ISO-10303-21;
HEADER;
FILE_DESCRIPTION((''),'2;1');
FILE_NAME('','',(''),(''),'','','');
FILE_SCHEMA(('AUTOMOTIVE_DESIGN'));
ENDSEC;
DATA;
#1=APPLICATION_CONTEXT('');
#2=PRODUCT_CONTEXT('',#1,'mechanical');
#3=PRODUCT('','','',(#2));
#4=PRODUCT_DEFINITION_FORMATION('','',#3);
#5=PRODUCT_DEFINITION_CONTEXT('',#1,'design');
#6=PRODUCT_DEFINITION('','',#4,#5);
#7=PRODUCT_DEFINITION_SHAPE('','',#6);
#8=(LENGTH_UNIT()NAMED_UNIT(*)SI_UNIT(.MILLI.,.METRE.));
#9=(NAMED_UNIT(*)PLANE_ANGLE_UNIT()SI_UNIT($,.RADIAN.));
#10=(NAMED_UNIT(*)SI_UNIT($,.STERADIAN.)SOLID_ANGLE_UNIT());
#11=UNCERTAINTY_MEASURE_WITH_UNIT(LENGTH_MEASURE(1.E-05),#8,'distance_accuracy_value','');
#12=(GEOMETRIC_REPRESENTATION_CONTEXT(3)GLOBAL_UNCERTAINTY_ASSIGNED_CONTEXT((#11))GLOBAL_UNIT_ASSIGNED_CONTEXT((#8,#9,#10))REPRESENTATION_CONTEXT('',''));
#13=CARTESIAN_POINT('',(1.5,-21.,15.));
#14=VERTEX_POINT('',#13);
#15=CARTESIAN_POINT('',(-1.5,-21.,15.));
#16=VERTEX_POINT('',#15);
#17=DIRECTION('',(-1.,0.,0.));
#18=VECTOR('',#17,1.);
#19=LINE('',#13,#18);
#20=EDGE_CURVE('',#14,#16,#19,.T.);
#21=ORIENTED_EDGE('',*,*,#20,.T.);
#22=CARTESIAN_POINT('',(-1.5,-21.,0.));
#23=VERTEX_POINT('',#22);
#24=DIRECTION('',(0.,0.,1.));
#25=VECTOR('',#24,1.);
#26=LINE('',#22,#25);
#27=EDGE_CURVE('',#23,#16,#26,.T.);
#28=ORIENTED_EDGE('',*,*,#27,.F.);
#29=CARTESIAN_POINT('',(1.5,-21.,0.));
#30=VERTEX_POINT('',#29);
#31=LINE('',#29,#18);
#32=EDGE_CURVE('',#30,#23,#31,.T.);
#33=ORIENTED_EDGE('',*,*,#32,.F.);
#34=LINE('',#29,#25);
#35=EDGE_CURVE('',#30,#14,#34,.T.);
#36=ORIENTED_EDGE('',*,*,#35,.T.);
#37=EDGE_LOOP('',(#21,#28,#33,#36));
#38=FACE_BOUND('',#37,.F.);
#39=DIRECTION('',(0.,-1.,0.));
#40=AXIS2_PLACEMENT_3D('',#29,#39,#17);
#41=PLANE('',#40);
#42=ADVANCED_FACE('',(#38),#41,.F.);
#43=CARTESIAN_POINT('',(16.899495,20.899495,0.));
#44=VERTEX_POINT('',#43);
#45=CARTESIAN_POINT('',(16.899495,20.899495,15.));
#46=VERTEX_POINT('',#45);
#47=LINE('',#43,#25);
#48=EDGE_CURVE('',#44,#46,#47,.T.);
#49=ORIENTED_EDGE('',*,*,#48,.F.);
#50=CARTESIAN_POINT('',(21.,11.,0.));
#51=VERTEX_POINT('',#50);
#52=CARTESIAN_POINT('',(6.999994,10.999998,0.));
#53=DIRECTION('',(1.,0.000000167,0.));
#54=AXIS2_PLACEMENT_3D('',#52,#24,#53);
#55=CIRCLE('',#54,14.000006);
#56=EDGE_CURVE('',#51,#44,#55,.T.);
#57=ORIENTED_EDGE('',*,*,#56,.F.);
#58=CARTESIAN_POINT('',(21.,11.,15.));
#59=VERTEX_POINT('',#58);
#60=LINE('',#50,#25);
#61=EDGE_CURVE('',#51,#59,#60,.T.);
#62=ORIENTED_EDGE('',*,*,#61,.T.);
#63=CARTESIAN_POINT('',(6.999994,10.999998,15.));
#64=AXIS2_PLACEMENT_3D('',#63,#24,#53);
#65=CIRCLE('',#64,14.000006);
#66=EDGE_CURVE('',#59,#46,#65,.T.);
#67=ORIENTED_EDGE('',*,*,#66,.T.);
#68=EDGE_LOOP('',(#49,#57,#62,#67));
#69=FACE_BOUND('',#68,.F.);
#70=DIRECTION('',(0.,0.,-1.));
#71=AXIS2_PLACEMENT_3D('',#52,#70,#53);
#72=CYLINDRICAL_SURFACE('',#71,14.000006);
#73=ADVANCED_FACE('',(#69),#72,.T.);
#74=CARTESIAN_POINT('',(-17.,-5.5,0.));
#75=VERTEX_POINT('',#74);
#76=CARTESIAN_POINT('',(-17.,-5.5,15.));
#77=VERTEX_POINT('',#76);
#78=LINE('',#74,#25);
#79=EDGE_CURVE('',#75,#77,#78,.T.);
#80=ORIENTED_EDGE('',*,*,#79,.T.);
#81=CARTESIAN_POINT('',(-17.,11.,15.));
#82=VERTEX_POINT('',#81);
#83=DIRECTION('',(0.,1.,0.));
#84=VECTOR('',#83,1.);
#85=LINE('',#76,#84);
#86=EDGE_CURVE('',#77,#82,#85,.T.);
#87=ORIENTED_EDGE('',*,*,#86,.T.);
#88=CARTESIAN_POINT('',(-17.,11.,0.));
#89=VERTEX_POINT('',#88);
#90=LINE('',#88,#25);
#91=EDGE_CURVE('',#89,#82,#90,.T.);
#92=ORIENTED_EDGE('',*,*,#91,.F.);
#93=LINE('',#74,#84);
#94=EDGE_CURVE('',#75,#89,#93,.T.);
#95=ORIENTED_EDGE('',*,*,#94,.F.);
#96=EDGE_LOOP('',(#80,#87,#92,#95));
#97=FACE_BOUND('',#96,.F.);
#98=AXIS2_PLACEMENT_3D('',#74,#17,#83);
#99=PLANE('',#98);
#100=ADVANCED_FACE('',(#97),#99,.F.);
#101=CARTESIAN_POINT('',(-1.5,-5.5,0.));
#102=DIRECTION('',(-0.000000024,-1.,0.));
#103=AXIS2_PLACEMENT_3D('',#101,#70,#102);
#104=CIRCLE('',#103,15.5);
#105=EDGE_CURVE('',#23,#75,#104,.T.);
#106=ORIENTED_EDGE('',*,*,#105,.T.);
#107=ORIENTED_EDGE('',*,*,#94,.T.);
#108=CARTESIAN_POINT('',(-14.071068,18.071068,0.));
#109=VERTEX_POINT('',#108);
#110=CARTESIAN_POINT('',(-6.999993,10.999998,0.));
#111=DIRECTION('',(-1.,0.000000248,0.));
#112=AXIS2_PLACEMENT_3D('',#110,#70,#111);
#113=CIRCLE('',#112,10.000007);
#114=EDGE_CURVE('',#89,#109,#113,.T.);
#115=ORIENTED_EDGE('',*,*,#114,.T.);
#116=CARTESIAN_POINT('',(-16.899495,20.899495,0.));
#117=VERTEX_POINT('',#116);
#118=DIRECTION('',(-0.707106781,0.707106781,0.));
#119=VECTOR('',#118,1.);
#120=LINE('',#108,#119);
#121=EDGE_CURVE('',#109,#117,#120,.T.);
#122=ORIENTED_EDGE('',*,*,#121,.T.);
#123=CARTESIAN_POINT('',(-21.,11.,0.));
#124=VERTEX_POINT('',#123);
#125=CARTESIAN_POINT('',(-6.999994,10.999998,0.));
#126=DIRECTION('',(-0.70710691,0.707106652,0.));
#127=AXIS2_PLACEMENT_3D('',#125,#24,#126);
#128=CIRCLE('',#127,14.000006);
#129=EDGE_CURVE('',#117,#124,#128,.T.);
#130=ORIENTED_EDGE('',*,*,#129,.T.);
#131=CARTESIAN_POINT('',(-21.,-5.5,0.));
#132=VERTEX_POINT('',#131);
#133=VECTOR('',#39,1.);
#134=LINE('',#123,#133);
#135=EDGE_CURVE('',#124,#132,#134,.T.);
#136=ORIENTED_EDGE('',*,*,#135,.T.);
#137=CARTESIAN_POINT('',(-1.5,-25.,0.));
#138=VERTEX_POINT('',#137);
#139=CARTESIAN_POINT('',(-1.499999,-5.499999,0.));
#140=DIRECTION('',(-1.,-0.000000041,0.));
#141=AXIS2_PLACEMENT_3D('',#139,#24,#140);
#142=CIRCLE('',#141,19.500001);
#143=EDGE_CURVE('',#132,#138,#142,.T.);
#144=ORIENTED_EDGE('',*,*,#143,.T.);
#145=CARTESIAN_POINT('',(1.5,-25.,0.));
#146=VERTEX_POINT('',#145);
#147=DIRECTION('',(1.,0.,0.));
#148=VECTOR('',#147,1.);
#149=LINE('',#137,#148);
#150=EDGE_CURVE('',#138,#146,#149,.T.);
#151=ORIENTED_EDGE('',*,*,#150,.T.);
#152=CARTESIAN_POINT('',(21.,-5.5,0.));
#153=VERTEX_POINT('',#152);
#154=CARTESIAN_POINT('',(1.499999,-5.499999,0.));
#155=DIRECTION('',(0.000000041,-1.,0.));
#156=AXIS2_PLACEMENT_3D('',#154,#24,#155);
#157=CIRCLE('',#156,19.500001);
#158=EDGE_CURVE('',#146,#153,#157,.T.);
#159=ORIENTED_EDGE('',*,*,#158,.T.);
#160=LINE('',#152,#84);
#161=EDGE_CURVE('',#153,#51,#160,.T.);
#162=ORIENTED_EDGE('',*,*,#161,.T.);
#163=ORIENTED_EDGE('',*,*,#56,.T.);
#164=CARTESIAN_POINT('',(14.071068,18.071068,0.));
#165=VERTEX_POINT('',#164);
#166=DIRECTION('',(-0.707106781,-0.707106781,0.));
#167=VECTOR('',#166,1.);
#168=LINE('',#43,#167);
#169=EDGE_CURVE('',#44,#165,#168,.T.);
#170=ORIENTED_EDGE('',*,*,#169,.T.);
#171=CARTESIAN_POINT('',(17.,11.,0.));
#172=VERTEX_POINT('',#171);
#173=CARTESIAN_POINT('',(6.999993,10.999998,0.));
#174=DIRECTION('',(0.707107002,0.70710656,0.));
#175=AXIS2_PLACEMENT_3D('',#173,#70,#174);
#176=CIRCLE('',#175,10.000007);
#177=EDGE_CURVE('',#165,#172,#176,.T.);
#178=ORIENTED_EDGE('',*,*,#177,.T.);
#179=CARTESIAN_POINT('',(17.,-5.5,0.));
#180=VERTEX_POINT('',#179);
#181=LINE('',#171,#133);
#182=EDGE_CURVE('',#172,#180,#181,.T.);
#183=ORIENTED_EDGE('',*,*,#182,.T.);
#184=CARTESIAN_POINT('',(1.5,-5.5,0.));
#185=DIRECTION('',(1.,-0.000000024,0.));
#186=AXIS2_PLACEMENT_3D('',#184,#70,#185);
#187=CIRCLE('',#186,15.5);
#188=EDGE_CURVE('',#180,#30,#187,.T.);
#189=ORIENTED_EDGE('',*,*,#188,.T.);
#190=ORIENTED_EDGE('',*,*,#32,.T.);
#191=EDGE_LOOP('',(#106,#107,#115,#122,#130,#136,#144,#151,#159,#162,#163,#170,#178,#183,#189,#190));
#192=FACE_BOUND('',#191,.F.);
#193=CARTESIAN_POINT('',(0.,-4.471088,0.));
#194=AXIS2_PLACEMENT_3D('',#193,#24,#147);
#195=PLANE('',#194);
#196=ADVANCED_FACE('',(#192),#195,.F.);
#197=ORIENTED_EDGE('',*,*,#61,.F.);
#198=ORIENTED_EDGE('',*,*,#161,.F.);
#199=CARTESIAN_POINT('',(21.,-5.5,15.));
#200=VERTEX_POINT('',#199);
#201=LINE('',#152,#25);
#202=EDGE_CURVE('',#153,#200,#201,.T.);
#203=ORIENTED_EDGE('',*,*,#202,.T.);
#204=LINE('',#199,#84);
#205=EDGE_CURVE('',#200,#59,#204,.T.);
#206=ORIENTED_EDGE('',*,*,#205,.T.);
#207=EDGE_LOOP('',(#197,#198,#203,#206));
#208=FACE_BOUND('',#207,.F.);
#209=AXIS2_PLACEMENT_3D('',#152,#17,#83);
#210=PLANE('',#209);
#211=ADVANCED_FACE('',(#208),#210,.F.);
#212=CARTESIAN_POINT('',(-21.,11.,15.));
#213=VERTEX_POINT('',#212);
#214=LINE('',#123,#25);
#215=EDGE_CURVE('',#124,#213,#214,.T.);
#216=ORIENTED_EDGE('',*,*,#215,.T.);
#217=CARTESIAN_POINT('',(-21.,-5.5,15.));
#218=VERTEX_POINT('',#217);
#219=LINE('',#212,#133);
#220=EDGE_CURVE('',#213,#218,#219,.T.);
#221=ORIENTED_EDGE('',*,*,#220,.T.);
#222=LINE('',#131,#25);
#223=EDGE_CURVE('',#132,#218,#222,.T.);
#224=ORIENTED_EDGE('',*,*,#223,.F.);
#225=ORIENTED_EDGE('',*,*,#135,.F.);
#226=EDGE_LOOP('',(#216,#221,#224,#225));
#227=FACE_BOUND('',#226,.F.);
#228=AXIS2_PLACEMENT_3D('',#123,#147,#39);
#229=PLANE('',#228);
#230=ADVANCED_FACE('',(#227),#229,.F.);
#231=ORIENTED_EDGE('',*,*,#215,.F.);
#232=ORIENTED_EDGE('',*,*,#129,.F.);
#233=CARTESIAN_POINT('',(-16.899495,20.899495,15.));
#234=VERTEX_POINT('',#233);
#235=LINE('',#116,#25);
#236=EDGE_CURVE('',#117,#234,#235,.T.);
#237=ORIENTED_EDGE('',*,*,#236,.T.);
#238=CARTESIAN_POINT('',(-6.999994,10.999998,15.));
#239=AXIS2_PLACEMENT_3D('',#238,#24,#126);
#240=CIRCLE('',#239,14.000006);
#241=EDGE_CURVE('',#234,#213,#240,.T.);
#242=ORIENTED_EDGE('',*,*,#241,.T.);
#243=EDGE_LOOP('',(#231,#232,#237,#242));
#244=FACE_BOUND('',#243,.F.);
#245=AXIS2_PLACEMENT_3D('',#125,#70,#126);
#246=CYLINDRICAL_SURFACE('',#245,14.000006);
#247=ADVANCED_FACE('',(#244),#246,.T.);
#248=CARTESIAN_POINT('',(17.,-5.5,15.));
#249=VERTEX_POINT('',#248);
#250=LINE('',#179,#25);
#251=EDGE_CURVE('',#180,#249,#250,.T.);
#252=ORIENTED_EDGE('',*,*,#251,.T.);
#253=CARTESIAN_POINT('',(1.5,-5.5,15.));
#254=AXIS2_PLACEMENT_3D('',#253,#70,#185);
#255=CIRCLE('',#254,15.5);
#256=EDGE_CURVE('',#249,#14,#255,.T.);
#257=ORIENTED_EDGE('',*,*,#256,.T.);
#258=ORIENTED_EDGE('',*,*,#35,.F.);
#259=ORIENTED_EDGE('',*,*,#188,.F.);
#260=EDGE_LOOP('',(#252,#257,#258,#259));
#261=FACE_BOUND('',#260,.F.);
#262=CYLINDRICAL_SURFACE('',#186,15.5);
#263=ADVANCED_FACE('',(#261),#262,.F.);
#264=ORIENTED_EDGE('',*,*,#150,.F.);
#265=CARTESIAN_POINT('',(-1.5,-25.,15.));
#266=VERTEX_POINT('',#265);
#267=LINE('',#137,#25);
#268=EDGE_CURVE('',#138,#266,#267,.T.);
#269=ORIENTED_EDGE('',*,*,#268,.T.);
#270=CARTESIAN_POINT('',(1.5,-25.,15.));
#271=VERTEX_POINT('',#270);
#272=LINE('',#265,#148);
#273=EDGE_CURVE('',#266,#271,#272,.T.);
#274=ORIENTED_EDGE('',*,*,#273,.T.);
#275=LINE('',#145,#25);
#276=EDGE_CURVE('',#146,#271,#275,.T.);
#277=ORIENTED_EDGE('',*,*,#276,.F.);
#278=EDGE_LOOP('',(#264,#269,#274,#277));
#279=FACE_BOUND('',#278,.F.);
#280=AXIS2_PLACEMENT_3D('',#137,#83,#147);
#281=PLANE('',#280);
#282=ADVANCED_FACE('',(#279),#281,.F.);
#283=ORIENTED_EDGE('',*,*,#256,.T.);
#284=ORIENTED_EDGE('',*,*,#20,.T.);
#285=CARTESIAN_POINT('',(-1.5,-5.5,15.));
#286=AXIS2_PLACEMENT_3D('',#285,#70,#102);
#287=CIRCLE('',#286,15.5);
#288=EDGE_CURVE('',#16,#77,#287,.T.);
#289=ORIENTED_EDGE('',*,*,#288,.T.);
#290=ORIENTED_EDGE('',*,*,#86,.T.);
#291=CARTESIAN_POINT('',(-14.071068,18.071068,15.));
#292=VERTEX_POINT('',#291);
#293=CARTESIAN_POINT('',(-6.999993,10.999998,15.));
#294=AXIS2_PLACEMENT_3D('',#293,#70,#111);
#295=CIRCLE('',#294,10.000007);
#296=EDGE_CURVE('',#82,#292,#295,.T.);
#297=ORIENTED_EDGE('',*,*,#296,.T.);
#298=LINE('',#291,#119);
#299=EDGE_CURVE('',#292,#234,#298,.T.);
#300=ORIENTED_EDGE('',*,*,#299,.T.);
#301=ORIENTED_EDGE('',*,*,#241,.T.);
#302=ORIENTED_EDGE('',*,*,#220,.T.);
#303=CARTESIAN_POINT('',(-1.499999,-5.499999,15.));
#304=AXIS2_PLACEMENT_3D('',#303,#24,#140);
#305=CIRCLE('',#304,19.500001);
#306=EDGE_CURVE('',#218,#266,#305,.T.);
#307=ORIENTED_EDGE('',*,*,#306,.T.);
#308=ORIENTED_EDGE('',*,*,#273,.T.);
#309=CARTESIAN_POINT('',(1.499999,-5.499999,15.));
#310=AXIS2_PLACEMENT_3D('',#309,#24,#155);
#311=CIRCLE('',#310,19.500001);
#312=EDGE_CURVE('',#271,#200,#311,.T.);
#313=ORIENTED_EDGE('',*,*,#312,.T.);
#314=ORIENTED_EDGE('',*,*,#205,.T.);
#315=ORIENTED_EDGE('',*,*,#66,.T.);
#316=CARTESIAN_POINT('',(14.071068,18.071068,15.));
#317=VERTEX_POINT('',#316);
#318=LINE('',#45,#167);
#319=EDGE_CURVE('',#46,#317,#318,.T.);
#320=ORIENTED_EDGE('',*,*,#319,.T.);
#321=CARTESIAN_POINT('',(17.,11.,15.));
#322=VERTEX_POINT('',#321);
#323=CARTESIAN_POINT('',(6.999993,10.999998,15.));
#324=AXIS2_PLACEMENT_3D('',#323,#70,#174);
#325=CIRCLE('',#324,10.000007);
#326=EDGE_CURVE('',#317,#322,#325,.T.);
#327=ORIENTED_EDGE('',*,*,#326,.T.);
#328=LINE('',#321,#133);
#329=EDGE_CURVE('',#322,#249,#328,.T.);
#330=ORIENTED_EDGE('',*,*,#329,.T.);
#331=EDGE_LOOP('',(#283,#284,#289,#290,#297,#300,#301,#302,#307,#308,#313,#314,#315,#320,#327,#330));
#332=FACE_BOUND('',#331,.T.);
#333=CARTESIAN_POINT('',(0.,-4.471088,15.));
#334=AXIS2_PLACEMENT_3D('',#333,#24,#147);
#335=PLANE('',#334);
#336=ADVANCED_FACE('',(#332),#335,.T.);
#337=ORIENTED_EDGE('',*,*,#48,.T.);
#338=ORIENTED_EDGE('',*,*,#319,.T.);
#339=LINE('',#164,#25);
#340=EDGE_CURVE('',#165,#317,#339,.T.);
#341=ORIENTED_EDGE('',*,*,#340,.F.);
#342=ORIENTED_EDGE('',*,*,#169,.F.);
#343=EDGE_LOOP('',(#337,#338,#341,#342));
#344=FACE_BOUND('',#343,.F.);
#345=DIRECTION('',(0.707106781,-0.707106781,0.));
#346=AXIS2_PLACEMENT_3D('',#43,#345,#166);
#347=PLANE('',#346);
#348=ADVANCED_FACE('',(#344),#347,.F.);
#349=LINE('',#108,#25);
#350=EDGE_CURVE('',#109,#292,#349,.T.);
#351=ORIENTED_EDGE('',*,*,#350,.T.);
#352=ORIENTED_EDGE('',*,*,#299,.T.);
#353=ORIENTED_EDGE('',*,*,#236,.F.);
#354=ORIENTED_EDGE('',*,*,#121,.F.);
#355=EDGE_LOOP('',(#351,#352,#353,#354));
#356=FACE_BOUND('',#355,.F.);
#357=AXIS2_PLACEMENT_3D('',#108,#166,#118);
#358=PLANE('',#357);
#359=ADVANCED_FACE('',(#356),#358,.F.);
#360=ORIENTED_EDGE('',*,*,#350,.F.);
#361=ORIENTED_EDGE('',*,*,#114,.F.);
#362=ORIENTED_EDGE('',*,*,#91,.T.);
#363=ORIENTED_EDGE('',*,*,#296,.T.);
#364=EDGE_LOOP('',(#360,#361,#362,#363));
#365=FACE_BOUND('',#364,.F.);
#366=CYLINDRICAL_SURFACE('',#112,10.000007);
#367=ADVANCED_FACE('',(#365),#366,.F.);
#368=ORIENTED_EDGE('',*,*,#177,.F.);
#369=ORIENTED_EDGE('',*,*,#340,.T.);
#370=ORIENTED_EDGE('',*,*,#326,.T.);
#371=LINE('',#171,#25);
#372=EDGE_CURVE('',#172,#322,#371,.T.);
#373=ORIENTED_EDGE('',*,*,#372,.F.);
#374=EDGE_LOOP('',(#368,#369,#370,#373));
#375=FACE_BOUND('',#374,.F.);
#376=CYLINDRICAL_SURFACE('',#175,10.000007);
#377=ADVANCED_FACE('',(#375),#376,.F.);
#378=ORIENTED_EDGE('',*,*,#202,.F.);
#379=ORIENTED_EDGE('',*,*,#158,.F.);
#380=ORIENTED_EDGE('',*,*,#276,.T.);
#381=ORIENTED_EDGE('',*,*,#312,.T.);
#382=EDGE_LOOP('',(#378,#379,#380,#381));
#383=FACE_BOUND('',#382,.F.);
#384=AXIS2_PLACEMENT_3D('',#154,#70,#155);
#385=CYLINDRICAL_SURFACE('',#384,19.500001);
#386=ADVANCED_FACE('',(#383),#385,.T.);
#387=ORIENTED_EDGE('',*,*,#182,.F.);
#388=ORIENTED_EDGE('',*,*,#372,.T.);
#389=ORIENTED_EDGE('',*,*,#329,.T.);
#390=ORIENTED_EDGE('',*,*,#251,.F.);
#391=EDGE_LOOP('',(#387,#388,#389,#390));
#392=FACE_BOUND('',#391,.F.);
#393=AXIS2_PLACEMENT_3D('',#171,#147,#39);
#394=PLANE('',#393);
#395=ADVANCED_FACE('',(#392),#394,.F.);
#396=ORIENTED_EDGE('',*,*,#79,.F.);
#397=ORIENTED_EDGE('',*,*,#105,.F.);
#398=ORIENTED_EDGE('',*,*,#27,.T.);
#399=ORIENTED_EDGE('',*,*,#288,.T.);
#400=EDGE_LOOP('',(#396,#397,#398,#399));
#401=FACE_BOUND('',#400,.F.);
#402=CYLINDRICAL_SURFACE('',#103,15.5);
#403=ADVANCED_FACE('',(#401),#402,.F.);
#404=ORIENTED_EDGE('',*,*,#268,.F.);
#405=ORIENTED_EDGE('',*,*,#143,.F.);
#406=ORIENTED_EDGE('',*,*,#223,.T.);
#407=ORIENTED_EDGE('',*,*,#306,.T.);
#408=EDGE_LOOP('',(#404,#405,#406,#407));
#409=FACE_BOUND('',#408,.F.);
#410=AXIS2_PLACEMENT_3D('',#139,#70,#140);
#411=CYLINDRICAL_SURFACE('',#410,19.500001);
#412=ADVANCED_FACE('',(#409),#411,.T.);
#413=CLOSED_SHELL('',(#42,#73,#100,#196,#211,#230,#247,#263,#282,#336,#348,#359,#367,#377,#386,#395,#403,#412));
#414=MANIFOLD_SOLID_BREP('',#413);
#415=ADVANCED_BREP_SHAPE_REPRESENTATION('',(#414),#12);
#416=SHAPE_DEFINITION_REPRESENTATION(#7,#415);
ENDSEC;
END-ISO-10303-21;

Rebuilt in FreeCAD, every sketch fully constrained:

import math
import FreeCAD as App
import Part
import Sketcher

V = App.Vector

doc = App.newDocument("Part")
body = doc.addObject("PartDesign::Body", "Body")

sketch1 = body.newObject("Sketcher::SketchObject", "Sketch")
sketch1.AttachmentSupport = (doc.getObject("XY_Plane"), [""])
sketch1.MapMode = "FlatFace"
sketch1.addGeometry(Part.ArcOfCircle(Part.Circle(V(-7, 11, 0), V(0, 0, 1), 10), math.radians(135), math.radians(180)), False)
sketch1.addGeometry(Part.LineSegment(V(-14.1, 18.1, 0), V(-16.9, 20.9, 0)), False)
sketch1.addGeometry(Part.ArcOfCircle(Part.Circle(V(-7, 11, 0), V(0, 0, 1), 14), math.radians(135), math.radians(180)), False)
sketch1.addGeometry(Part.LineSegment(V(-21, 11, 0), V(-21, -5.5, 0)), False)
sketch1.addGeometry(Part.ArcOfCircle(Part.Circle(V(-1.5, -5.5, 0), V(0, 0, 1), 19.5), math.radians(-180), math.radians(-90)), False)
sketch1.addGeometry(Part.LineSegment(V(-1.5, -25, 0), V(1.5, -25, 0)), False)
sketch1.addGeometry(Part.ArcOfCircle(Part.Circle(V(1.5, -5.5, 0), V(0, 0, 1), 19.5), math.radians(-90), math.radians(0)), False)
sketch1.addGeometry(Part.LineSegment(V(21, -5.5, 0), V(21, 11, 0)), False)
sketch1.addGeometry(Part.ArcOfCircle(Part.Circle(V(7, 11, 0), V(0, 0, 1), 14), math.radians(0), math.radians(45)), False)
sketch1.addGeometry(Part.LineSegment(V(16.9, 20.9, 0), V(14.1, 18.1, 0)), False)
sketch1.addGeometry(Part.ArcOfCircle(Part.Circle(V(7, 11, 0), V(0, 0, 1), 10), math.radians(0), math.radians(45)), False)
sketch1.addGeometry(Part.LineSegment(V(17, 11, 0), V(17, -5.5, 0)), False)
sketch1.addGeometry(Part.ArcOfCircle(Part.Circle(V(1.5, -5.5, 0), V(0, 0, 1), 15.5), math.radians(-90), math.radians(0)), False)
sketch1.addGeometry(Part.LineSegment(V(1.5, -21, 0), V(-1.5, -21, 0)), False)
sketch1.addGeometry(Part.ArcOfCircle(Part.Circle(V(-1.5, -5.5, 0), V(0, 0, 1), 15.5), math.radians(-180), math.radians(-90)), False)
sketch1.addGeometry(Part.LineSegment(V(-17, -5.5, 0), V(-17, 11, 0)), False)
sketch1.addConstraint(Sketcher.Constraint("Coincident", 0, 1, 1, 1))
sketch1.addConstraint(Sketcher.Constraint("Coincident", 1, 2, 2, 1))
sketch1.addConstraint(Sketcher.Constraint("Tangent", 2, 2, 3, 1))
sketch1.addConstraint(Sketcher.Constraint("Tangent", 3, 2, 4, 1))
sketch1.addConstraint(Sketcher.Constraint("Tangent", 4, 2, 5, 1))
sketch1.addConstraint(Sketcher.Constraint("Tangent", 5, 2, 6, 1))
sketch1.addConstraint(Sketcher.Constraint("Tangent", 6, 2, 7, 1))
sketch1.addConstraint(Sketcher.Constraint("Tangent", 7, 2, 8, 1))
sketch1.addConstraint(Sketcher.Constraint("Coincident", 8, 2, 9, 1))
sketch1.addConstraint(Sketcher.Constraint("Coincident", 9, 2, 10, 2))
sketch1.addConstraint(Sketcher.Constraint("Tangent", 10, 1, 11, 1))
sketch1.addConstraint(Sketcher.Constraint("Tangent", 11, 2, 12, 2))
sketch1.addConstraint(Sketcher.Constraint("Tangent", 12, 1, 13, 1))
sketch1.addConstraint(Sketcher.Constraint("Tangent", 13, 2, 14, 2))
sketch1.addConstraint(Sketcher.Constraint("Tangent", 14, 1, 15, 1))
sketch1.addConstraint(Sketcher.Constraint("Tangent", 15, 2, 0, 2))
sketch1.addConstraint(Sketcher.Constraint("Vertical", 3))
sketch1.addConstraint(Sketcher.Constraint("Horizontal", 5))
sketch1.addConstraint(Sketcher.Constraint("Vertical", 7))
sketch1.addConstraint(Sketcher.Constraint("Vertical", 11))
sketch1.addConstraint(Sketcher.Constraint("Horizontal", 13))
sketch1.addConstraint(Sketcher.Constraint("Vertical", 15))
sketch1.addConstraint(Sketcher.Constraint("Coincident", 2, 3, 0, 3))
sketch1.addConstraint(Sketcher.Constraint("Coincident", 10, 3, 8, 3))
sketch1.addConstraint(Sketcher.Constraint("Coincident", 12, 3, 6, 3))
sketch1.addConstraint(Sketcher.Constraint("Coincident", 14, 3, 4, 3))
sketch1.addConstraint(Sketcher.Constraint("Equal", 4, 6))
sketch1.addConstraint(Sketcher.Constraint("Equal", 2, 8))
sketch1.addConstraint(Sketcher.Constraint("Symmetric", 0, 3, 8, 3, -2))
sketch1.addConstraint(Sketcher.Constraint("Perpendicular", 1, 9))
sketch1.addConstraint(Sketcher.Constraint("Horizontal", 1, 2, 8, 2))
sketch1.addConstraint(Sketcher.Constraint("Horizontal", 0, 1, 9, 2))
sketch1.addConstraint(Sketcher.Constraint("Radius", 4, 19.500001))
sketch1.addConstraint(Sketcher.Constraint("Radius", 12, 15.5))
sketch1.addConstraint(Sketcher.Constraint("DistanceX", 5, 1, 5, 2, 3.0))
sketch1.addConstraint(Sketcher.Constraint("DistanceY", 3, 2, 3, 1, 16.5))
sketch1.addConstraint(Sketcher.Constraint("DistanceY", -1, 1, 2, 2, 11.0))
sketch1.addConstraint(Sketcher.Constraint("Radius", 0, 10.000007))
sketch1.addConstraint(Sketcher.Constraint("DistanceX", 1, 2, 2, 3, 9.899501))
pad1 = body.newObject("PartDesign::Pad", "Pad")
pad1.Profile = sketch1
pad1.Length = 15

doc.recompute()
